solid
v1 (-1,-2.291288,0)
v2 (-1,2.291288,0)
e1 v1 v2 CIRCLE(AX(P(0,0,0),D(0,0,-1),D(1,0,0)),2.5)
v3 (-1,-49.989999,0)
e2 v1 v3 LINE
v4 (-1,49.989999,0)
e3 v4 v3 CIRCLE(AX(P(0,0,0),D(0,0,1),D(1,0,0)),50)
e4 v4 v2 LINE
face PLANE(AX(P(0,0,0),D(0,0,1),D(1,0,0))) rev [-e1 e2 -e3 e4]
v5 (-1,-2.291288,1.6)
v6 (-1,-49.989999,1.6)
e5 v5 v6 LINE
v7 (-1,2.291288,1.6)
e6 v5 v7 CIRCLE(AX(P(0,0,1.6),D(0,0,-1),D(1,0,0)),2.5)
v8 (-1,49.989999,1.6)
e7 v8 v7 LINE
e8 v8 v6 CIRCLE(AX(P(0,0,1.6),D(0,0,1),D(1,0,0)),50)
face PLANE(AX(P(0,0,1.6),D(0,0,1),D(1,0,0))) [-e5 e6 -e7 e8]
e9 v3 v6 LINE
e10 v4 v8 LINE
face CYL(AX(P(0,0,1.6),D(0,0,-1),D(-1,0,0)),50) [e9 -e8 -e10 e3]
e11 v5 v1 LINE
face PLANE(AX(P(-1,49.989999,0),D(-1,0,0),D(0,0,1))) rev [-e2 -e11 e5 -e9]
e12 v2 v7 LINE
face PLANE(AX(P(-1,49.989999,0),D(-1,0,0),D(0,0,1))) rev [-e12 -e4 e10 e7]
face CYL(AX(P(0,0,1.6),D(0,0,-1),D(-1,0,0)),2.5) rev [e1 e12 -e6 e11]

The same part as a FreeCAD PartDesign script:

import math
import FreeCAD as App
import Part
import Sketcher
from FreeCAD import Vector


def add_polygon(sketch, points):
    """Adds a closed chain of lines whose ends are joined by coincident constraints."""
    first, n = sketch.GeometryCount, len(points)
    for a, b in zip(points, points[1:] + points[:1]):
        sketch.addGeometry(Part.LineSegment(App.Vector(*a, 0), App.Vector(*b, 0)), False)
    for i in range(n):
        sketch.addConstraint(Sketcher.Constraint("Coincident", first + i, 2, first + (i + 1) % n, 1))

doc = App.newDocument("Part")
body = doc.addObject("PartDesign::Body", "Body")

# Sketch on XY plane
sketch1 = body.newObject("Sketcher::SketchObject", "Sketch")
sketch1.AttachmentSupport = (doc.getObject("XY_Plane"), [""])
sketch1.MapMode = "FlatFace"
sketch1.addGeometry([
    Part.LineSegment(Vector(0, 2.5, 0), Vector(0, 50, 0)),
    Part.ArcOfCircle(Part.Circle(Vector(0, 0, 0), Vector(0, 0, 1), 50), math.radians(90), math.radians(270)),
    Part.LineSegment(Vector(0, -50, 0), Vector(0, -2.5, 0)),
    Part.ArcOfCircle(Part.Circle(Vector(0, 0, 0), Vector(0, 0, 1), 2.5), math.radians(90), math.radians(270)),
], False)
sketch1.addConstraint([
    Sketcher.Constraint("Coincident", 0, 2, 1, 1),
    Sketcher.Constraint("Coincident", 1, 2, 2, 1),
    Sketcher.Constraint("Coincident", 2, 2, 3, 2),
    Sketcher.Constraint("Coincident", 3, 1, 0, 1),
    Sketcher.Constraint("Vertical", 0),
    Sketcher.Constraint("Vertical", 2),
    Sketcher.Constraint("Coincident", 1, 3, -1, 1),
    Sketcher.Constraint("Coincident", 3, 3, -1, 1),
    Sketcher.Constraint("PointOnObject", 0, 2, -2),
    Sketcher.Constraint("PointOnObject", 1, 2, -2),
    Sketcher.Constraint("Radius", 1, 50.0),
    Sketcher.Constraint("Radius", 3, 2.5),
])
pad1 = body.newObject("PartDesign::Pad", "Pad")
pad1.Profile = sketch1
pad1.Length = 1.6

# Sketch on XY plane
sketch2 = body.newObject("Sketcher::SketchObject", "Sketch001")
sketch2.AttachmentSupport = (doc.getObject("XY_Plane"), [""])
sketch2.MapMode = "FlatFace"
sketch2.AttachmentOffset = App.Placement(Vector(0, 0, 1.6), App.Rotation())
add_polygon(sketch2, [(-1, 50), (-1, -50), (11, -56), (13, 54)])  # lines 0-3
sketch2.addConstraint([
    Sketcher.Constraint("Vertical", 0),
    Sketcher.Constraint("DistanceX", 0, 2, -1, 1, 1.0),
    Sketcher.Constraint("DistanceY", 0, 2, -1, 1, 49.989999),
    Sketcher.Constraint("DistanceY", -1, 1, 3, 2, 49.989999),
    Sketcher.Constraint("Distance", 3, 14.577539),
    Sketcher.Constraint("DistanceX", -1, 1, 2, 2, 12.92525),
    Sketcher.Constraint("Distance", 1, 13.288723),
    Sketcher.Constraint("Distance", 2, 110.287495),
])
pocket1 = body.newObject("PartDesign::Pocket", "Pocket")
pocket1.Profile = sketch2
pocket1.Type = "ThroughAll"

doc.recompute()
